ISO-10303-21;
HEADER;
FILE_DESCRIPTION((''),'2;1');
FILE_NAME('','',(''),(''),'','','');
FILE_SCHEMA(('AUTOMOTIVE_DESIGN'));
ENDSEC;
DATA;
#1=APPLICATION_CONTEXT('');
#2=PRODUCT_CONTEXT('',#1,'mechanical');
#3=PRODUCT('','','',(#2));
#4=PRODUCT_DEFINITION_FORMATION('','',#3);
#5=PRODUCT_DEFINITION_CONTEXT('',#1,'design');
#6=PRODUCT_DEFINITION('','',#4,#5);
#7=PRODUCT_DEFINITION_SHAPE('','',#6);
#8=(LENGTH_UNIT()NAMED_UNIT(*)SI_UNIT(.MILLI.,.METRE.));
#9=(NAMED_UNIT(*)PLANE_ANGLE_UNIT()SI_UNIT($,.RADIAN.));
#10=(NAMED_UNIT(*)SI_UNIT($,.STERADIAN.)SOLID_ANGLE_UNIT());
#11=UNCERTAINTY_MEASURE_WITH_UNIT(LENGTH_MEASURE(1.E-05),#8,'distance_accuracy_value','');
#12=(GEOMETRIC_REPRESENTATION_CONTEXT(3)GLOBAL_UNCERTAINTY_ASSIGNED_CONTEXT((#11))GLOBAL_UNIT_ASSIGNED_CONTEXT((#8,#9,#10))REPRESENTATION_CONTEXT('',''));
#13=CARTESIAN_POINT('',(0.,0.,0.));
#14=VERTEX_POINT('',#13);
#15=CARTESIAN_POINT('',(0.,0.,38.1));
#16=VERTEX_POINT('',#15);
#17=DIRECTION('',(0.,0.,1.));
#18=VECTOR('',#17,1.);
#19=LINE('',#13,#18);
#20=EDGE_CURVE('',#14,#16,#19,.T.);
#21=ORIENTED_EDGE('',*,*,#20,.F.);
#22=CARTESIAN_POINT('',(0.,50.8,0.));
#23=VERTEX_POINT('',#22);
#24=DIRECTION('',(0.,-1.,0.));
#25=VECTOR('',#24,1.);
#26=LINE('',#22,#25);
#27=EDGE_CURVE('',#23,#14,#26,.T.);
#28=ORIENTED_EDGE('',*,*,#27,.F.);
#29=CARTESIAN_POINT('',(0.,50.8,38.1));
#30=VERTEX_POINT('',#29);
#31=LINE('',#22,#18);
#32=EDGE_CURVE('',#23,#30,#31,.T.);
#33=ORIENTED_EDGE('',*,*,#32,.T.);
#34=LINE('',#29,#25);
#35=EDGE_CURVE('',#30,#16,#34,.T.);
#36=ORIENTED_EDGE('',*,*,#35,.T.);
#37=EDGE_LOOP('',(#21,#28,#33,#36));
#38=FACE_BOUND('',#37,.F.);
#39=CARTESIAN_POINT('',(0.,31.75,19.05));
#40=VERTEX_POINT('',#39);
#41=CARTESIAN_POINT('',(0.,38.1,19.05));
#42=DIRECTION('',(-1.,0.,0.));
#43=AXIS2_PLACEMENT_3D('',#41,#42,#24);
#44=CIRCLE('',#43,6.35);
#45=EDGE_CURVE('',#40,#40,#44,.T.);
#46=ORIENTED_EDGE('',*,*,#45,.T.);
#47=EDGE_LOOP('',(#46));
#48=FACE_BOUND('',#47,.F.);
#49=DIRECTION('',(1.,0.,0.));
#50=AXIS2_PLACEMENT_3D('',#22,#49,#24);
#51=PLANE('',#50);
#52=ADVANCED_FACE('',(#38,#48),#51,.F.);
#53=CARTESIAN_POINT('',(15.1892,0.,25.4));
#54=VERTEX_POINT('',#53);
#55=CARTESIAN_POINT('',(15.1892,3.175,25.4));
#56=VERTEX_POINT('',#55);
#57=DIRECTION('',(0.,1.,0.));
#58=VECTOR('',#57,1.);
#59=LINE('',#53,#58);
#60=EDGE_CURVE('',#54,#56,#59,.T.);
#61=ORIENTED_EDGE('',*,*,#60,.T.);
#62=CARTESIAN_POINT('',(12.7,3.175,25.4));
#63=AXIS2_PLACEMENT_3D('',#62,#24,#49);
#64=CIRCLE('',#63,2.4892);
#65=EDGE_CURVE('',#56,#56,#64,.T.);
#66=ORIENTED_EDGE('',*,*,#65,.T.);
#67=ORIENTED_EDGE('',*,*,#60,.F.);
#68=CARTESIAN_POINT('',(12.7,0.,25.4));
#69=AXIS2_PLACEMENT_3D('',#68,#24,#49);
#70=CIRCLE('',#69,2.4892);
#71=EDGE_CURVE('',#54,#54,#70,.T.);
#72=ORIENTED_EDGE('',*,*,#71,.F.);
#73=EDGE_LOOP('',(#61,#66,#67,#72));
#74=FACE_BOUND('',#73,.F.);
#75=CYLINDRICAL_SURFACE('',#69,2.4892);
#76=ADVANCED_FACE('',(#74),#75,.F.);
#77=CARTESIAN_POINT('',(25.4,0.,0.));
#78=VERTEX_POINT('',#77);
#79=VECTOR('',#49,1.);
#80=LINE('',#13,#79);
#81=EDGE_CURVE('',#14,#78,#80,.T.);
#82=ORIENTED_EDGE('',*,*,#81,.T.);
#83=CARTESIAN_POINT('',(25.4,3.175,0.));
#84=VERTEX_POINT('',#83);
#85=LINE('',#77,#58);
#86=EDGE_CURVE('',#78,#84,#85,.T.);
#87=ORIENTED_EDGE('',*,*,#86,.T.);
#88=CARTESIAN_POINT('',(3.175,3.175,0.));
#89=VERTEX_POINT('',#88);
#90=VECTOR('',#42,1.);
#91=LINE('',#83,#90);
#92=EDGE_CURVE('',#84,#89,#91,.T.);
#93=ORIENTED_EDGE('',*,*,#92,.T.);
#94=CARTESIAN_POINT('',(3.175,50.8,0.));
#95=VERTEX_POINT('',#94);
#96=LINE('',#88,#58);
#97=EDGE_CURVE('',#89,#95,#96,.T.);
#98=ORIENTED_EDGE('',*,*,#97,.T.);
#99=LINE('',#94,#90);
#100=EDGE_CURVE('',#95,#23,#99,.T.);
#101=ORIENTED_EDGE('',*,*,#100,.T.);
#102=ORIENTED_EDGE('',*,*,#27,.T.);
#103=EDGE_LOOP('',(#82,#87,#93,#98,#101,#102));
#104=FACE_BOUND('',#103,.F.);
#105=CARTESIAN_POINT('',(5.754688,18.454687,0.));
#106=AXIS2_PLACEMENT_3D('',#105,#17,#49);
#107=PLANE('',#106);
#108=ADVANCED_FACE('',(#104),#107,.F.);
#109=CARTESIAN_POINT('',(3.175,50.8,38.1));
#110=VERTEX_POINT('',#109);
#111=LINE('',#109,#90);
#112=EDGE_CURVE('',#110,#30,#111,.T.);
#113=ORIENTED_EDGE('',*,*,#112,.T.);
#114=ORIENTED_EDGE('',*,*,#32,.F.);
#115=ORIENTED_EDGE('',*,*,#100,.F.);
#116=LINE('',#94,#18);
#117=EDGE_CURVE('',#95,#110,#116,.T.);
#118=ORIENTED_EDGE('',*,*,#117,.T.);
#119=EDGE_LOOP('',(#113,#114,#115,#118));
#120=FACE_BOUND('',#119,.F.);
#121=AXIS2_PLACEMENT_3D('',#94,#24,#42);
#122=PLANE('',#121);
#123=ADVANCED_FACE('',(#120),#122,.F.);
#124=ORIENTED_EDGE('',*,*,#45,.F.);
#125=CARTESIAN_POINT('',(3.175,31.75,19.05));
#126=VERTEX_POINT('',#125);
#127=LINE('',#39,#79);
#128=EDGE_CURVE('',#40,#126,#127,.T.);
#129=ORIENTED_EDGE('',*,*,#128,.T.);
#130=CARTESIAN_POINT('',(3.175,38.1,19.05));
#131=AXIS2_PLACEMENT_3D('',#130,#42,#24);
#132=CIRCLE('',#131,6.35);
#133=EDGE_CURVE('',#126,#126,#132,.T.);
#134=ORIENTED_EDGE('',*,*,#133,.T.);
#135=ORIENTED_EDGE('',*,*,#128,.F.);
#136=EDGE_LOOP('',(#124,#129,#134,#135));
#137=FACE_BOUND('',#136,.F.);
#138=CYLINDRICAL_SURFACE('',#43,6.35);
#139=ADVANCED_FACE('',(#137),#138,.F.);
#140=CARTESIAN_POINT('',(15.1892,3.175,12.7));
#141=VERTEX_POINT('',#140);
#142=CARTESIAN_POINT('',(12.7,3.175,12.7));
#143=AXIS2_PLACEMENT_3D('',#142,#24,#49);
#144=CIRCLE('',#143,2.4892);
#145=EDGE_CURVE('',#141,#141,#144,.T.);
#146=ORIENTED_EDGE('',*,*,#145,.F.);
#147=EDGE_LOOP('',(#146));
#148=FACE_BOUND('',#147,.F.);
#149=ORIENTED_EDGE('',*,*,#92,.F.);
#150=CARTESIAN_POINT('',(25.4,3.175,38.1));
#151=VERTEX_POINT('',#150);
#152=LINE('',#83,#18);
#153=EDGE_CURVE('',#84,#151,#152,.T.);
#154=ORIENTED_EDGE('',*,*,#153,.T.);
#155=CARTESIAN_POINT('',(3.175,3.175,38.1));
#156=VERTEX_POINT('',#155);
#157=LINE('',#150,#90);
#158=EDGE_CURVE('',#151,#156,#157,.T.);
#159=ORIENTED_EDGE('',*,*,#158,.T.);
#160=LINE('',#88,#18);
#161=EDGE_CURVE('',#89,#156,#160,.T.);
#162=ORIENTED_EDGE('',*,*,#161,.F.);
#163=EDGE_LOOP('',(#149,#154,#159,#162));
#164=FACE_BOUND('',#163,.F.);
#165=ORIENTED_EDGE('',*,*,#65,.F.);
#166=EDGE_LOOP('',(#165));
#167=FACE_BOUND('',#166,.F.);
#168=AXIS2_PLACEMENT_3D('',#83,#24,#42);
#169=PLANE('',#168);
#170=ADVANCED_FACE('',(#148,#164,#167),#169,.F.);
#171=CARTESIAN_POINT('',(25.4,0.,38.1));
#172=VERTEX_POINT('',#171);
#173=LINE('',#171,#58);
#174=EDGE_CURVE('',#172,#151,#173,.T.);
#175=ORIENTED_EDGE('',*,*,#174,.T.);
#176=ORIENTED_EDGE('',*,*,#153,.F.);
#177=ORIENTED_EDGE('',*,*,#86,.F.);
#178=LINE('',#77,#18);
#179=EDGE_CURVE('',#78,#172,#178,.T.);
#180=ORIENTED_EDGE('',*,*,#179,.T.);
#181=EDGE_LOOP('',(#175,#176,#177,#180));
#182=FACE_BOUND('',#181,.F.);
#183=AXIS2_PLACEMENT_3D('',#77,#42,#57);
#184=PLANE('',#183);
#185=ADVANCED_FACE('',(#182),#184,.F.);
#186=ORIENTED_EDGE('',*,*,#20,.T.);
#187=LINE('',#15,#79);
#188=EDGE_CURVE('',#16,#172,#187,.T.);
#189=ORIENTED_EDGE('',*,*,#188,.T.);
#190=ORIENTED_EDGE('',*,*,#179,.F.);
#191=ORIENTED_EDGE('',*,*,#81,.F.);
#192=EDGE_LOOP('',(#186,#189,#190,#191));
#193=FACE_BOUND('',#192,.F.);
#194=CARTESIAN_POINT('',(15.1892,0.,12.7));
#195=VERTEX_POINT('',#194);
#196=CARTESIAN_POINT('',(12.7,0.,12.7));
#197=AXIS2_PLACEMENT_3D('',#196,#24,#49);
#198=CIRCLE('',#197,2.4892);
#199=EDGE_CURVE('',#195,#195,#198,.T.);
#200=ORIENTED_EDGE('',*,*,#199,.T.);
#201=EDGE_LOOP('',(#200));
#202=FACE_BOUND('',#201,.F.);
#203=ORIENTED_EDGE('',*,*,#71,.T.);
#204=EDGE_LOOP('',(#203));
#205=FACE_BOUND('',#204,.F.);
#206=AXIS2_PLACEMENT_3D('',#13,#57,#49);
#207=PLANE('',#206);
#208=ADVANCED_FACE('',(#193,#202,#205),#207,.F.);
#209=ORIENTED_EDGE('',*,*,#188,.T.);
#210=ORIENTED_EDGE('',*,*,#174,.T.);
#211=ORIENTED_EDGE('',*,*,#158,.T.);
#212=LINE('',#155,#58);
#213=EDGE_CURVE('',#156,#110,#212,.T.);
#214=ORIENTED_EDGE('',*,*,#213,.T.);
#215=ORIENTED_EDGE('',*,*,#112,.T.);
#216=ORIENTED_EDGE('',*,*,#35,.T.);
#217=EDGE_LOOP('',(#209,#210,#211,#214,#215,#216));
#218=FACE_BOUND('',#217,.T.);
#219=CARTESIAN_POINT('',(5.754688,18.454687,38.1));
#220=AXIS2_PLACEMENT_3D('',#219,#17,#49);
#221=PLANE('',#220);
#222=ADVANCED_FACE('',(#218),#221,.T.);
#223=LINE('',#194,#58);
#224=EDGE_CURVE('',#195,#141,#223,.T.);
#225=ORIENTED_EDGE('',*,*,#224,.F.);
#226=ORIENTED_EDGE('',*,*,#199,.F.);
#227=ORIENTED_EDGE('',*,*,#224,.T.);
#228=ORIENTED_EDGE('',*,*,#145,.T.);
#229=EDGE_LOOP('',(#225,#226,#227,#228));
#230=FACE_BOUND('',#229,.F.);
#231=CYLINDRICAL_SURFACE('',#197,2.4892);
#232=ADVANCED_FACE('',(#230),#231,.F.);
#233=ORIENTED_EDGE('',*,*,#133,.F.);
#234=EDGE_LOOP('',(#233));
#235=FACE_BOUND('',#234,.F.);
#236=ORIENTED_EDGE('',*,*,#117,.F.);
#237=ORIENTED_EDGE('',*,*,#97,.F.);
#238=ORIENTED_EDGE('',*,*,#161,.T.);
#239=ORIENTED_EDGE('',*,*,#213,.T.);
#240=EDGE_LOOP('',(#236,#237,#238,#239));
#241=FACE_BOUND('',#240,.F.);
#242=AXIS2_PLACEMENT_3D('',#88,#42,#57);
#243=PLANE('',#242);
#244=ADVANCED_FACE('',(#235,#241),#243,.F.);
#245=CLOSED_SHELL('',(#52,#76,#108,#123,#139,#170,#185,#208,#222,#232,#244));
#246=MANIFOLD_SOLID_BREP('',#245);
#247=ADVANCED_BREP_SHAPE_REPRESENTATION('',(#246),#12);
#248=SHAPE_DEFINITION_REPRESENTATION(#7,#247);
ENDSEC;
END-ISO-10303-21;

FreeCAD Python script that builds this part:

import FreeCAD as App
import Part
import Sketcher

V = App.Vector
Q = App.Units.Quantity

doc = App.newDocument("Part")
body = doc.addObject("PartDesign::Body", "Body")

sketch1 = body.newObject("Sketcher::SketchObject", "Sketch")
sketch1.AttachmentSupport = (doc.getObject("XY_Plane"), [""])
sketch1.MapMode = "FlatFace"
sketch1.addGeometry([
    Part.LineSegment(V(3.2, 50.8, 0), V(0, 50.8, 0)),
    Part.LineSegment(V(0, 50.8, 0), V(0, 0, 0)),
    Part.LineSegment(V(0, 0, 0), V(25.4, 0, 0)),
    Part.LineSegment(V(25.4, 0, 0), V(25.4, 3.2, 0)),
    Part.LineSegment(V(25.4, 3.2, 0), V(3.2, 3.2, 0)),
    Part.LineSegment(V(3.2, 3.2, 0), V(3.2, 50.8, 0)),
], False)
sketch1.addConstraint([
    Sketcher.Constraint("Coincident", 0, 2, 1, 1),
    Sketcher.Constraint("Coincident", 1, 2, 2, 1),
    Sketcher.Constraint("Coincident", 2, 2, 3, 1),
    Sketcher.Constraint("Coincident", 3, 2, 4, 1),
    Sketcher.Constraint("Coincident", 4, 2, 5, 1),
    Sketcher.Constraint("Coincident", 5, 2, 0, 1),
    Sketcher.Constraint("Horizontal", 0),
    Sketcher.Constraint("Vertical", 1),
    Sketcher.Constraint("Horizontal", 2),
    Sketcher.Constraint("Vertical", 3),
    Sketcher.Constraint("Horizontal", 4),
    Sketcher.Constraint("Vertical", 5),
    Sketcher.Constraint("Coincident", 1, 2, -1, 1),
    Sketcher.Constraint("Equal", 0, 3),
    Sketcher.Constraint("DistanceX", 2, 1, 2, 2, Q("1 in")),
    Sketcher.Constraint("DistanceY", 1, 2, 1, 1, Q("2 in")),
    Sketcher.Constraint("DistanceX", 0, 2, 0, 1, Q("0.125 in")),
])
pad1 = body.newObject("PartDesign::Pad", "Pad")
pad1.Profile = sketch1
pad1.Length = Q("1.5 in")

sketch2 = body.newObject("Sketcher::SketchObject", "Sketch001")
sketch2.AttachmentSupport = (doc.getObject("XZ_Plane"), [""])
sketch2.MapMode = "FlatFace"
sketch2.addGeometry([
    Part.Circle(V(12.7, 25.4, 0), V(0, 0, 1), 2.5),
    Part.Circle(V(12.7, 12.7, 0), V(0, 0, 1), 2.5),
], False)
sketch2.addConstraint([
    Sketcher.Constraint("Equal", 0, 1),
    Sketcher.Constraint("Vertical", 0, 3, 1, 3),
    Sketcher.Constraint("Diameter", 0, Q("0.196 in")),
    Sketcher.Constraint("DistanceY", -1, 1, 0, 3, Q("1 in")),
    Sketcher.Constraint("DistanceX", -1, 1, 0, 3, Q("0.5 in")),
    Sketcher.Constraint("DistanceY", -1, 1, 1, 3, Q("0.5 in")),
])
pocket1 = body.newObject("PartDesign::Pocket", "Pocket")
pocket1.Profile = sketch2
pocket1.Type = "ThroughAll"

sketch3 = body.newObject("Sketcher::SketchObject", "Sketch002")
sketch3.AttachmentSupport = (doc.getObject("YZ_Plane"), [""])
sketch3.MapMode = "FlatFace"
sketch3.addGeometry(Part.Circle(V(38, 19, 0), V(0, 0, 1), 6), False)
sketch3.addConstraint([
    Sketcher.Constraint("Diameter", 0, Q("0.5 in")),
    Sketcher.Constraint("DistanceX", -1, 1, 0, 3, Q("1.5 in")),
    Sketcher.Constraint("DistanceY", -1, 1, 0, 3, Q("0.75 in")),
])
pocket2 = body.newObject("PartDesign::Pocket", "Pocket001")
pocket2.Profile = sketch3
pocket2.Type = "ThroughAll"
pocket2.Reversed = True

doc.recompute()
